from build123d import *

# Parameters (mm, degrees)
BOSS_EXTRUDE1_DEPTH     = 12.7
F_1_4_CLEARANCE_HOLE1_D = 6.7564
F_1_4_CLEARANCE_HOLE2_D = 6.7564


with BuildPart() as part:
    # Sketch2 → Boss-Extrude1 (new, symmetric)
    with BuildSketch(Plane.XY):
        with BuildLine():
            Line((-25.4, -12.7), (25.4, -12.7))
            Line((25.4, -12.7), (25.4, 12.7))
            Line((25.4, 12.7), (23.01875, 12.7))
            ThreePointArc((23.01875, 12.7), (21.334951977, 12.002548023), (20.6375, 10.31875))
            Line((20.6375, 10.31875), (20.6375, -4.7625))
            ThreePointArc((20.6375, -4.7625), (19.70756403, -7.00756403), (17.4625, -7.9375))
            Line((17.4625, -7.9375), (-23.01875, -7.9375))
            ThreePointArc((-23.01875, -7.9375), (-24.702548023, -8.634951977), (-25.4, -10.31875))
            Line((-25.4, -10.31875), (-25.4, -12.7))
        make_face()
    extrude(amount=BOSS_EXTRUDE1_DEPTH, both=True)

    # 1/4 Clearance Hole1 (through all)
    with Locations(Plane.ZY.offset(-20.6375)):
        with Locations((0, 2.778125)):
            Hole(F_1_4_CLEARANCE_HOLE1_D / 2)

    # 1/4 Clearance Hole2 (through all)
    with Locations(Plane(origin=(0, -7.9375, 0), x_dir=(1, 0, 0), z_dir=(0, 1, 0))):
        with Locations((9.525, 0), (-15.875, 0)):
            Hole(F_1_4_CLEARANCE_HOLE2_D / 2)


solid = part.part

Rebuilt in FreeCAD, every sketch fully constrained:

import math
import FreeCAD as App
import Part
import Sketcher
from FreeCAD import Vector
Q = App.Units.Quantity

doc = App.newDocument("Part")
body = doc.addObject("PartDesign::Body", "Body")

sketch1 = body.newObject("Sketcher::SketchObject", "Sketch")
sketch1.AttachmentSupport = (doc.getObject("XY_Plane"), [""])
sketch1.MapMode = "FlatFace"
sketch1.addGeometry([
    Part.LineSegment(Vector(-25.4, -12.7, 0), Vector(25.4, -12.7, 0)),
    Part.LineSegment(Vector(25.4, -12.7, 0), Vector(25.4, 12.7, 0)),
    Part.LineSegment(Vector(25.4, 12.7, 0), Vector(23, 12.7, 0)),
    Part.ArcOfCircle(Part.Circle(Vector(23, 10.3, 0), Vector(0, 0, 1), 2.4), math.radians(90), math.radians(180)),
    Part.LineSegment(Vector(20.6, 10.3, 0), Vector(20.6, -4.8, 0)),
    Part.ArcOfCircle(Part.Circle(Vector(17.5, -4.8, 0), Vector(0, 0, 1), 3.2), math.radians(-90), math.radians(0)),
    Part.LineSegment(Vector(17.5, -7.9, 0), Vector(-23, -7.9, 0)),
    Part.ArcOfCircle(Part.Circle(Vector(-23, -10.3, 0), Vector(0, 0, 1), 2.4), math.radians(90), math.radians(180)),
    Part.LineSegment(Vector(-25.4, -10.3, 0), Vector(-25.4, -12.7, 0)),
], False)
sketch1.addConstraint([
    Sketcher.Constraint("Coincident", 0, 2, 1, 1),
    Sketcher.Constraint("Coincident", 1, 2, 2, 1),
    Sketcher.Constraint("Tangent", 2, 2, 3, 1),
    Sketcher.Constraint("Tangent", 3, 2, 4, 1),
    Sketcher.Constraint("Tangent", 4, 2, 5, 2),
    Sketcher.Constraint("Tangent", 5, 1, 6, 1),
    Sketcher.Constraint("Tangent", 6, 2, 7, 1),
    Sketcher.Constraint("Tangent", 7, 2, 8, 1),
    Sketcher.Constraint("Coincident", 8, 2, 0, 1),
    Sketcher.Constraint("Horizontal", 0),
    Sketcher.Constraint("Vertical", 1),
    Sketcher.Constraint("Horizontal", 2),
    Sketcher.Constraint("Vertical", 4),
    Sketcher.Constraint("Horizontal", 6),
    Sketcher.Constraint("Vertical", 8),
    Sketcher.Constraint("Equal", 3, 7),
    Sketcher.Constraint("Symmetric", 3, 3, 7, 3, -1, 1),
    Sketcher.Constraint("Symmetric", 1, 2, 8, 2, -1, 1),
    Sketcher.Constraint("DistanceX", 0, 1, 0, 2, Q("2 in")),
    Sketcher.Constraint("DistanceY", 1, 1, 1, 2, Q("1 in")),
    Sketcher.Constraint("Radius", 3, Q("0.09375 in")),
    Sketcher.Constraint("Radius", 5, Q("0.125 in")),
])
pad1 = body.newObject("PartDesign::Pad", "Pad")
pad1.Profile = sketch1
pad1.Length = Q("1 in")
pad1.Midplane = True

sketch2 = body.newObject("Sketcher::SketchObject", "Sketch001")
sketch2.AttachmentSupport = (doc.getObject("YZ_Plane"), [""])
sketch2.MapMode = "FlatFace"
sketch2.AttachmentOffset = App.Placement(Vector(0, 0, 0.8125 * 25.4), App.Rotation())
sketch2.addGeometry(Part.Circle(Vector(2.8, 0, 0), Vector(0, 0, 1), 3.4), False)
sketch2.addConstraint([
    Sketcher.Constraint("PointOnObject", 0, 3, -1),
    Sketcher.Constraint("Diameter", 0, Q("0.266 in")),
    Sketcher.Constraint("DistanceX", -1, 1, 0, 3, Q("0.109375 in")),
])
doc.recompute()
hole = body.newObject("PartDesign::Hole", "Hole")
hole.Profile = sketch2
hole.ThreadType = "None"
hole.Diameter = Q("0.266 in")
hole.DepthType = "ThroughAll"
hole.Reversed = True

sketch3 = body.newObject("Sketcher::SketchObject", "Sketch002")
sketch3.AttachmentSupport = (doc.getObject("XZ_Plane"), [""])
sketch3.MapMode = "FlatFace"
sketch3.AttachmentOffset = App.Placement(Vector(0, 0, 0.3125 * 25.4), App.Rotation())
sketch3.addGeometry([
    Part.Circle(Vector(9.5, 0, 0), Vector(0, 0, 1), 3.4),
    Part.Circle(Vector(-15.9, 0, 0), Vector(0, 0, 1), 3.4),
], False)
sketch3.addConstraint([
    Sketcher.Constraint("Equal", 0, 1),
    Sketcher.Constraint("PointOnObject", 0, 3, -1),
    Sketcher.Constraint("PointOnObject", 1, 3, -1),
    Sketcher.Constraint("Diameter", 0, Q("0.266 in")),
    Sketcher.Constraint("DistanceX", 1, 3, 0, 3, Q("1 in")),
    Sketcher.Constraint("DistanceX", -1, 1, 0, 3, Q("0.375 in")),
])
doc.recompute()
hole2 = body.newObject("PartDesign::Hole", "Hole001")
hole2.Profile = sketch3
hole2.ThreadType = "None"
hole2.Diameter = Q("0.266 in")
hole2.DepthType = "ThroughAll"
hole2.Reversed = True

doc.recompute()
